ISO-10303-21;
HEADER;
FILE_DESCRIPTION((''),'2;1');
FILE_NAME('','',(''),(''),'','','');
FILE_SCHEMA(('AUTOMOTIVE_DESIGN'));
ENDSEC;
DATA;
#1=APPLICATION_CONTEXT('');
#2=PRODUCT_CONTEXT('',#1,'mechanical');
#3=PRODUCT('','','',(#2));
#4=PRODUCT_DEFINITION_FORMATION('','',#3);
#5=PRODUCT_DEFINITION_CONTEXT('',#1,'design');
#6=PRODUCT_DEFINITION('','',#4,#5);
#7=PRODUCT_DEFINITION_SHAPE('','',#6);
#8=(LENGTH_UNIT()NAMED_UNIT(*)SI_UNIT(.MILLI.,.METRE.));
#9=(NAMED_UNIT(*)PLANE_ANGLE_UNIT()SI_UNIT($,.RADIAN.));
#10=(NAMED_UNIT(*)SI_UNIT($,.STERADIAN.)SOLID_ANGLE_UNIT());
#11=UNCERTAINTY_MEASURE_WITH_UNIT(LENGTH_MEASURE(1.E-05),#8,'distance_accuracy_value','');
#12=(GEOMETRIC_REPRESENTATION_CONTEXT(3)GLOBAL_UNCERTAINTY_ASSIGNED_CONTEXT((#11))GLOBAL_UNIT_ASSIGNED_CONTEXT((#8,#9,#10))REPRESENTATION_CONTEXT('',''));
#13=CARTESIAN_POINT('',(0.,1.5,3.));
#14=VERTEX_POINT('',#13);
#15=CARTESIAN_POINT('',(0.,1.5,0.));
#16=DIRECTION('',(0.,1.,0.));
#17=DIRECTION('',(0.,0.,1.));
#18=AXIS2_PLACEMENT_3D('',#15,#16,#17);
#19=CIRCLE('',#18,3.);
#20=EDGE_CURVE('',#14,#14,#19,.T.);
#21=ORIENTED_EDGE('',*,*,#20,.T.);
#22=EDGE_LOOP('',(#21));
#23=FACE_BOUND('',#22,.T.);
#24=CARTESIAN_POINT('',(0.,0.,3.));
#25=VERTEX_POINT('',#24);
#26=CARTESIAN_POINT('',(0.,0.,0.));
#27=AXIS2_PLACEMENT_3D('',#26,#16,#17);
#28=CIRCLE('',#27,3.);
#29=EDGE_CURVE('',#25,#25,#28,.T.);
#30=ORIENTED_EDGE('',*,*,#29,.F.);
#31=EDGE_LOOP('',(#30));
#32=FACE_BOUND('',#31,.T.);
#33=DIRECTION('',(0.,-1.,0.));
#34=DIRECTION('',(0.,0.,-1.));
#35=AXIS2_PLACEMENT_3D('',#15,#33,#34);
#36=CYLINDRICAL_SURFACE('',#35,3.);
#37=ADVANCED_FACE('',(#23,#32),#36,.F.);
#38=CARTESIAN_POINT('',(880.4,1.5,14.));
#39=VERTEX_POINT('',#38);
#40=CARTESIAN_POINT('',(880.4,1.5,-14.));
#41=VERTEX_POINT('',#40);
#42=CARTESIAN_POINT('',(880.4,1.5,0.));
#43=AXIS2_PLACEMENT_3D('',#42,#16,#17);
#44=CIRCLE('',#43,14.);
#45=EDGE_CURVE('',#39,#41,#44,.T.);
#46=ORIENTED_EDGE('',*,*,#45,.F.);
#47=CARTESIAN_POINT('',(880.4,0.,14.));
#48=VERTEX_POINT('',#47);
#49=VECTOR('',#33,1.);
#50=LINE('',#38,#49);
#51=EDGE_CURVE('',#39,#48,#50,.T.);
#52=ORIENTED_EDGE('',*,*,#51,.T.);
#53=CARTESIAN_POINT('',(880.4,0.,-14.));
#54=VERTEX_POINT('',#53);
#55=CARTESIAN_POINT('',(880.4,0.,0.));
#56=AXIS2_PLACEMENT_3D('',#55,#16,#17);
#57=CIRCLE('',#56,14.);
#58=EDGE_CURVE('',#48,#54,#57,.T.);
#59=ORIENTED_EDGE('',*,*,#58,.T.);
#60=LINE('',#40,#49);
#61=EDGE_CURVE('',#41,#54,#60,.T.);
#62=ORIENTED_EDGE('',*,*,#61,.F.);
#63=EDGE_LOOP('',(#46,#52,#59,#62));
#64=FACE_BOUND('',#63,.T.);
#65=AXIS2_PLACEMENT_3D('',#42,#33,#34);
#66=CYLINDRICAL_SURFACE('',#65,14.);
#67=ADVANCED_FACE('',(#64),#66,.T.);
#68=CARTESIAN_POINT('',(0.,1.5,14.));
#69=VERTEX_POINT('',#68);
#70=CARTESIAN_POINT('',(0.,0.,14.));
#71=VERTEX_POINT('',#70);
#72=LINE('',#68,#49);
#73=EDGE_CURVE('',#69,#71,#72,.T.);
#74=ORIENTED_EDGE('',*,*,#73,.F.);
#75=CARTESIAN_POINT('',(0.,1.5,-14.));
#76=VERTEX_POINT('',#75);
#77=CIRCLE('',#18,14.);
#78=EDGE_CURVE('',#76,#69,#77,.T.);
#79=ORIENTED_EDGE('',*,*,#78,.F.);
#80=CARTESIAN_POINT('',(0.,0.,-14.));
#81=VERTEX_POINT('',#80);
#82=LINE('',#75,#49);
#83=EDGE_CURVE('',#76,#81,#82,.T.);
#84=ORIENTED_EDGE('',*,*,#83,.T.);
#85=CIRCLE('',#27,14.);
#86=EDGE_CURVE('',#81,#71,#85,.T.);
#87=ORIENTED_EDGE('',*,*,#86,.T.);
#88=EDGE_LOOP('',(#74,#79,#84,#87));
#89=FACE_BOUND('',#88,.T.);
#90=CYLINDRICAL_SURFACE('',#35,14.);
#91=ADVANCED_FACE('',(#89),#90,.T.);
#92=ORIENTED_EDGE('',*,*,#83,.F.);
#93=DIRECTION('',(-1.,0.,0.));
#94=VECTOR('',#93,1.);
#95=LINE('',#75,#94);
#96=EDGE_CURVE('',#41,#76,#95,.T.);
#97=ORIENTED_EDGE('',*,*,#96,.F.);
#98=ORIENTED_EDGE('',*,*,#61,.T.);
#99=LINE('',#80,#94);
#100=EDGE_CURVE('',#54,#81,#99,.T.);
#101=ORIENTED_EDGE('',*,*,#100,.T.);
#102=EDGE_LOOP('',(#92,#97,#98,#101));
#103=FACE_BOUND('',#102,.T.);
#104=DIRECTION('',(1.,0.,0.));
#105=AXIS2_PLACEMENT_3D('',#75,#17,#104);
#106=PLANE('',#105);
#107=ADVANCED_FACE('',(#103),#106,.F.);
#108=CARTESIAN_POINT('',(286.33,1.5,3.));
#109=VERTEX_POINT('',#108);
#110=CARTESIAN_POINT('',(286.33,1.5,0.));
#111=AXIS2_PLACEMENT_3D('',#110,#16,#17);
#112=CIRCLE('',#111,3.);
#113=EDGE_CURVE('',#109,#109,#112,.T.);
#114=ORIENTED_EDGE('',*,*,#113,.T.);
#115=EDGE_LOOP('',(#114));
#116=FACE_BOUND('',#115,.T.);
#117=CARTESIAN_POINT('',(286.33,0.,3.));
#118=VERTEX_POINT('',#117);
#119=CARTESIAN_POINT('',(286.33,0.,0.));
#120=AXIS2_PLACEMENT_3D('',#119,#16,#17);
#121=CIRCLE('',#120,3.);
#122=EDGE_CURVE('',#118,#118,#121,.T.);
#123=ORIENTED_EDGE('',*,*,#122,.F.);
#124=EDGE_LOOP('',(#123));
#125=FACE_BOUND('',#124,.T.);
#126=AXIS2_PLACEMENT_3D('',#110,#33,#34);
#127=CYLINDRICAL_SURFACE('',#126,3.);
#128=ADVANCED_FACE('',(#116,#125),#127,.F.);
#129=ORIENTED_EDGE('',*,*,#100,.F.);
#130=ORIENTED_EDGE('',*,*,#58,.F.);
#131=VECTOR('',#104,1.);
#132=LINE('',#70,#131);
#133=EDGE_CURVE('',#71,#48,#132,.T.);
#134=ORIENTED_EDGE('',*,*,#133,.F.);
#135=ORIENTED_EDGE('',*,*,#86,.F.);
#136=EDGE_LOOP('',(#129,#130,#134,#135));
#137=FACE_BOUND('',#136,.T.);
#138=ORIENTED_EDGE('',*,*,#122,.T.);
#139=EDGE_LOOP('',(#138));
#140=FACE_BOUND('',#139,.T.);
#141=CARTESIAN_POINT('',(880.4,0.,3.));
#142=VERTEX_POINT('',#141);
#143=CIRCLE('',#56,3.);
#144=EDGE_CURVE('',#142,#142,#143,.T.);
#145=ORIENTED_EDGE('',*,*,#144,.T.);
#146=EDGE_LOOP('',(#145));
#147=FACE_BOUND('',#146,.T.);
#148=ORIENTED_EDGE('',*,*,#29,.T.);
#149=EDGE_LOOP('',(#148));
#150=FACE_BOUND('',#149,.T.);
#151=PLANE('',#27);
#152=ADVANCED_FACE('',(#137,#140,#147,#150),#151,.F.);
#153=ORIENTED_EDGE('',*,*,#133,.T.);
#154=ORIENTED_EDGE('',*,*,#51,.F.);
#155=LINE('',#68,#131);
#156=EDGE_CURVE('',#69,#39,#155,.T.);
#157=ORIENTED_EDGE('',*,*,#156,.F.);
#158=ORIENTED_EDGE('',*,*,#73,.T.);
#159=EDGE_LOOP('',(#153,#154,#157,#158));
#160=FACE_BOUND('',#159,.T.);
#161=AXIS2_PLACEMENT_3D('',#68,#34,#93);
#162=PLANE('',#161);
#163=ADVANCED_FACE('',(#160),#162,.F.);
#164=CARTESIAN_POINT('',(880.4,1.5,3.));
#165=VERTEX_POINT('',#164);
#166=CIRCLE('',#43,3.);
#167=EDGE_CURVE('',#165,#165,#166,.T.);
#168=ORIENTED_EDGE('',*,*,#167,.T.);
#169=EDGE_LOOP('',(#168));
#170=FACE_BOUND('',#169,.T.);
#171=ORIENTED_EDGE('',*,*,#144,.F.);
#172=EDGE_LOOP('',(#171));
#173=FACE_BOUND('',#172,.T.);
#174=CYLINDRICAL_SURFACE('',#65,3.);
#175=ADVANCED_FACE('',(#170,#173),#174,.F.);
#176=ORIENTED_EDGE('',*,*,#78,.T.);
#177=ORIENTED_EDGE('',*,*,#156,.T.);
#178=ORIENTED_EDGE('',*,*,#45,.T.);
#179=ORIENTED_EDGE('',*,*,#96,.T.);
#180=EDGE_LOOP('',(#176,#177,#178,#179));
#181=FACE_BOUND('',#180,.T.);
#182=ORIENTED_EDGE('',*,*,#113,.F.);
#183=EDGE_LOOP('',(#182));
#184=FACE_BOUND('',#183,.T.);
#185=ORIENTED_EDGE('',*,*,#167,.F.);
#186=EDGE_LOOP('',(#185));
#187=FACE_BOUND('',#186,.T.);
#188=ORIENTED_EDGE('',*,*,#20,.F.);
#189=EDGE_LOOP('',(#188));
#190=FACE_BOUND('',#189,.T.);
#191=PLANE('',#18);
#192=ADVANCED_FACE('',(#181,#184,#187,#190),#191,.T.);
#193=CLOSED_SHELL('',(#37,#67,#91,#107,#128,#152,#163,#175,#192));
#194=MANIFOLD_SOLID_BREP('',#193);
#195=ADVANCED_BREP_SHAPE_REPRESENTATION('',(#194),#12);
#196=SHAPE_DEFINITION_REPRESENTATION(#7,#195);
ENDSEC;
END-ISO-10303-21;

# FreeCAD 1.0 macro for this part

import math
import FreeCAD as App
import Part
import Sketcher

V = App.Vector
Q = App.Units.Quantity

doc = App.newDocument("Part")
params = doc.addObject("Spreadsheet::Sheet", "Params")
for row, (alias, value) in enumerate([
    ("sketch1_diameter", "6 mm"),
    ("sketch1_radius", "14 mm"),
    ("sketch1_width", "880.4 mm"),
    ("pad1_length", "1.5 mm"),
], start=1):
    params.set(f"A{row}", alias)
    params.set(f"B{row}", "=" + value)
    params.setAlias(f"B{row}", alias)

body = doc.addObject("PartDesign::Body", "Body")

# Sketch on XZ plane
sketch1 = body.newObject("Sketcher::SketchObject", "Sketch")
sketch1.AttachmentSupport = (doc.getObject("XZ_Plane"), [""])
sketch1.MapMode = "FlatFace"
sketch1.addGeometry([
    Part.LineSegment(V(880.4, -14, 0), V(0, -14, 0)),  # 0
    Part.ArcOfCircle(Part.Circle(V(0, 0, 0), V(0, 0, 1), 14), math.radians(90), math.radians(270)),  # 1
    Part.LineSegment(V(0, 14, 0), V(880.4, 14, 0)),  # 2
    Part.ArcOfCircle(Part.Circle(V(880.4, 0, 0), V(0, 0, 1), 14), math.radians(-90), math.radians(90)),  # 3
    Part.Circle(V(880.4, 0, 0), V(0, 0, 1), 3),  # 4
    Part.Circle(V(286.33, 0, 0), V(0, 0, 1), 3),  # 5
    Part.Circle(V(0, 0, 0), V(0, 0, 1), 3),  # 6
], False)
sketch1.addConstraint([
    Sketcher.Constraint("Tangent", 0, 2, 1, 2),
    Sketcher.Constraint("Tangent", 1, 1, 2, 1),
    Sketcher.Constraint("Tangent", 2, 2, 3, 2),
    Sketcher.Constraint("Tangent", 3, 1, 0, 1),
    Sketcher.Constraint("Horizontal", 0),
    Sketcher.Constraint("Horizontal", 2),
    Sketcher.Constraint("Coincident", 1, 3, -1, 1),
    Sketcher.Constraint("Coincident", 6, 3, -1, 1),
    Sketcher.Constraint("Coincident", 4, 3, 3, 3),
    Sketcher.Constraint("Equal", 4, 5),
    Sketcher.Constraint("Equal", 5, 6),
    Sketcher.Constraint("PointOnObject", 5, 3, -1),
    Sketcher.Constraint("Diameter", 4, Q("6 mm")),
    Sketcher.Constraint("Radius", 1, Q("14 mm")),
    Sketcher.Constraint("DistanceX", 0, 2, 0, 1, Q("880.4 mm")),
    Sketcher.Constraint("DistanceX", -1, 1, 5, 3, Q("286.33 mm")),
])
sketch1.setExpression("Constraints[12]", "Params.sketch1_diameter")
sketch1.setExpression("Constraints[13]", "Params.sketch1_radius")
sketch1.setExpression("Constraints[14]", "Params.sketch1_width")
pad1 = body.newObject("PartDesign::Pad", "Pad")
pad1.Profile = sketch1
pad1.setExpression("Length", "Params.pad1_length")
pad1.Reversed = True

doc.recompute()
